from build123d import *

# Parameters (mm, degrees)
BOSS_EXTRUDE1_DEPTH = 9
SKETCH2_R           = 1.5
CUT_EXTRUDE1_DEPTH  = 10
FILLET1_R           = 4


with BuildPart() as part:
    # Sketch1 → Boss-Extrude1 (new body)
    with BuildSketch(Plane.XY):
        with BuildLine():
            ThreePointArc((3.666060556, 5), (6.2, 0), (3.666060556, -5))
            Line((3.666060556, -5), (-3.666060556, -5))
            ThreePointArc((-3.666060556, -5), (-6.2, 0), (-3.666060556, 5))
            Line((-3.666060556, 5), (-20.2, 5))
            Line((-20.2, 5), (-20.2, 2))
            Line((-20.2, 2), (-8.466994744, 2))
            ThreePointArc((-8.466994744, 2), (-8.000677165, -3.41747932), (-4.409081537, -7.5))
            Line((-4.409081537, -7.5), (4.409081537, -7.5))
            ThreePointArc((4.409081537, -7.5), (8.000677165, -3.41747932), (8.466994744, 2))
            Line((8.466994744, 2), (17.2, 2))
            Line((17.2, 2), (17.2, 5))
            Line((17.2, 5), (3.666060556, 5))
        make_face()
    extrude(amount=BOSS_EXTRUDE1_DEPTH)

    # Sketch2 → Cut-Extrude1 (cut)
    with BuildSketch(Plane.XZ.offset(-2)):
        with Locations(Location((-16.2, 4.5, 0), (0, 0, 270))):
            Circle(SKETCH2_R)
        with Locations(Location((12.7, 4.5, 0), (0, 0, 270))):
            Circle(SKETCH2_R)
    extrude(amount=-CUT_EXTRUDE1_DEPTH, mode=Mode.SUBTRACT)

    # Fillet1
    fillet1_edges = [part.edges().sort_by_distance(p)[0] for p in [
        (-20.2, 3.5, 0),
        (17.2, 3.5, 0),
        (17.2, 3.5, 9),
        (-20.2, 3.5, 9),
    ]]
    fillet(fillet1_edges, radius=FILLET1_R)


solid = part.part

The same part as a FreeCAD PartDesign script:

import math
import FreeCAD as App
import Part
import Sketcher


def edges_at(feature, points):
    """Names of the edges that pass closest to the given points."""
    edges = feature.Shape.Edges
    near = lambda p: min(range(len(edges)), key=lambda i: edges[i].distToShape(Part.Vertex(*p))[0])
    return sorted({f"Edge{near(p) + 1}" for p in points})

doc = App.newDocument("Part")
body = doc.addObject("PartDesign::Body", "Body")

# Sketch on XY plane
sketch1 = body.newObject("Sketcher::SketchObject", "Sketch")
sketch1.AttachmentSupport = (doc.getObject("XY_Plane"), [""])
sketch1.MapMode = "FlatFace"
sketch1.addGeometry(Part.ArcOfCircle(Part.Circle(App.Vector(0, 0, 0), App.Vector(0, 0, 1), 6.2), math.radians(-54), math.radians(54)), False)
sketch1.addGeometry(Part.LineSegment(App.Vector(3.7, -5, 0), App.Vector(-3.7, -5, 0)), False)
sketch1.addGeometry(Part.ArcOfCircle(Part.Circle(App.Vector(0, 0, 0), App.Vector(0, 0, 1), 6.2), math.radians(126), math.radians(234)), False)
sketch1.addGeometry(Part.LineSegment(App.Vector(-3.7, 5, 0), App.Vector(-20.2, 5, 0)), False)
sketch1.addGeometry(Part.LineSegment(App.Vector(-20.2, 5, 0), App.Vector(-20.2, 2, 0)), False)
sketch1.addGeometry(Part.LineSegment(App.Vector(-20.2, 2, 0), App.Vector(-8.5, 2, 0)), False)
sketch1.addGeometry(Part.ArcOfCircle(Part.Circle(App.Vector(0, 0, 0), App.Vector(0, 0, 1), 8.7), math.radians(167), math.radians(240)), False)
sketch1.addGeometry(Part.LineSegment(App.Vector(-4.4, -7.5, 0), App.Vector(4.4, -7.5, 0)), False)
sketch1.addGeometry(Part.ArcOfCircle(Part.Circle(App.Vector(0, 0, 0), App.Vector(0, 0, 1), 8.7), math.radians(-60), math.radians(13)), False)
sketch1.addGeometry(Part.LineSegment(App.Vector(8.5, 2, 0), App.Vector(17.2, 2, 0)), False)
sketch1.addGeometry(Part.LineSegment(App.Vector(17.2, 2, 0), App.Vector(17.2, 5, 0)), False)
sketch1.addGeometry(Part.LineSegment(App.Vector(17.2, 5, 0), App.Vector(3.7, 5, 0)), False)
sketch1.addConstraint(Sketcher.Constraint("Coincident", 0, 1, 1, 1))
sketch1.addConstraint(Sketcher.Constraint("Coincident", 1, 2, 2, 2))
sketch1.addConstraint(Sketcher.Constraint("Coincident", 2, 1, 3, 1))
sketch1.addConstraint(Sketcher.Constraint("Coincident", 3, 2, 4, 1))
sketch1.addConstraint(Sketcher.Constraint("Coincident", 4, 2, 5, 1))
sketch1.addConstraint(Sketcher.Constraint("Coincident", 5, 2, 6, 1))
sketch1.addConstraint(Sketcher.Constraint("Coincident", 6, 2, 7, 1))
sketch1.addConstraint(Sketcher.Constraint("Coincident", 7, 2, 8, 1))
sketch1.addConstraint(Sketcher.Constraint("Coincident", 8, 2, 9, 1))
sketch1.addConstraint(Sketcher.Constraint("Coincident", 9, 2, 10, 1))
sketch1.addConstraint(Sketcher.Constraint("Coincident", 10, 2, 11, 1))
sketch1.addConstraint(Sketcher.Constraint("Coincident", 11, 2, 0, 2))
sketch1.addConstraint(Sketcher.Constraint("Horizontal", 1))
sketch1.addConstraint(Sketcher.Constraint("Horizontal", 3))
sketch1.addConstraint(Sketcher.Constraint("Vertical", 4))
sketch1.addConstraint(Sketcher.Constraint("Horizontal", 5))
sketch1.addConstraint(Sketcher.Constraint("Horizontal", 7))
sketch1.addConstraint(Sketcher.Constraint("Horizontal", 9))
sketch1.addConstraint(Sketcher.Constraint("Vertical", 10))
sketch1.addConstraint(Sketcher.Constraint("Horizontal", 11))
sketch1.addConstraint(Sketcher.Constraint("Coincident", 0, 3, -1, 1))
sketch1.addConstraint(Sketcher.Constraint("Coincident", 2, 3, -1, 1))
sketch1.addConstraint(Sketcher.Constraint("Coincident", 6, 3, -1, 1))
sketch1.addConstraint(Sketcher.Constraint("Coincident", 8, 3, -1, 1))
sketch1.addConstraint(Sketcher.Constraint("Equal", 0, 2))
sketch1.addConstraint(Sketcher.Constraint("Equal", 6, 8))
sketch1.addConstraint(Sketcher.Constraint("Horizontal", 5, 2, 8, 2))
sketch1.addConstraint(Sketcher.Constraint("Horizontal", 3, 2, 10, 2))
sketch1.addConstraint(Sketcher.Constraint("Vertical", 1, 2, 2, 1))
sketch1.addConstraint(Sketcher.Constraint("Radius", 0, 6.2))
sketch1.addConstraint(Sketcher.Constraint("Radius", 6, 8.7))
sketch1.addConstraint(Sketcher.Constraint("DistanceY", 4, 2, 4, 1, 3.0))
sketch1.addConstraint(Sketcher.Constraint("DistanceY", 0, 1, -1, 1, 5.0))
sketch1.addConstraint(Sketcher.Constraint("DistanceX", 3, 2, -1, 1, 20.2))
sketch1.addConstraint(Sketcher.Constraint("DistanceY", 6, 2, -1, 1, 7.5))
sketch1.addConstraint(Sketcher.Constraint("DistanceX", -1, 1, 9, 2, 17.2))
pad1 = body.newObject("PartDesign::Pad", "Pad")
pad1.Profile = sketch1
pad1.Length = 9

# Sketch on XZ plane
sketch2 = body.newObject("Sketcher::SketchObject", "Sketch001")
sketch2.AttachmentSupport = (doc.getObject("XZ_Plane"), [""])
sketch2.MapMode = "FlatFace"
sketch2.AttachmentOffset = App.Placement(App.Vector(0, 0, -2), App.Rotation())
sketch2.addGeometry(Part.Circle(App.Vector(-16.2, 4.5, 0), App.Vector(0, 0, 1), 1.5), False)
sketch2.addGeometry(Part.Circle(App.Vector(12.7, 4.5, 0), App.Vector(0, 0, 1), 1.5), False)
sketch2.addConstraint(Sketcher.Constraint("Equal", 0, 1))
sketch2.addConstraint(Sketcher.Constraint("Horizontal", 0, 3, 1, 3))
sketch2.addConstraint(Sketcher.Constraint("Diameter", 0, 3.0))
sketch2.addConstraint(Sketcher.Constraint("DistanceX", 0, 3, -1, 1, 16.2))
sketch2.addConstraint(Sketcher.Constraint("DistanceY", -1, 1, 0, 3, 4.5))
sketch2.addConstraint(Sketcher.Constraint("DistanceX", -1, 1, 1, 3, 12.7))
pocket1 = body.newObject("PartDesign::Pocket", "Pocket")
pocket1.Profile = sketch2
pocket1.Length = 10
doc.recompute()

fillet = body.newObject("PartDesign::Fillet", "Fillet")
fillet.Base = (pocket1, edges_at(pocket1, [
    (-20.2, 3.5, 0),
    (17.2, 3.5, 0),
    (17.2, 3.5, 9),
    (-20.2, 3.5, 9),
]))
fillet.Radius = 4

doc.recompute()
